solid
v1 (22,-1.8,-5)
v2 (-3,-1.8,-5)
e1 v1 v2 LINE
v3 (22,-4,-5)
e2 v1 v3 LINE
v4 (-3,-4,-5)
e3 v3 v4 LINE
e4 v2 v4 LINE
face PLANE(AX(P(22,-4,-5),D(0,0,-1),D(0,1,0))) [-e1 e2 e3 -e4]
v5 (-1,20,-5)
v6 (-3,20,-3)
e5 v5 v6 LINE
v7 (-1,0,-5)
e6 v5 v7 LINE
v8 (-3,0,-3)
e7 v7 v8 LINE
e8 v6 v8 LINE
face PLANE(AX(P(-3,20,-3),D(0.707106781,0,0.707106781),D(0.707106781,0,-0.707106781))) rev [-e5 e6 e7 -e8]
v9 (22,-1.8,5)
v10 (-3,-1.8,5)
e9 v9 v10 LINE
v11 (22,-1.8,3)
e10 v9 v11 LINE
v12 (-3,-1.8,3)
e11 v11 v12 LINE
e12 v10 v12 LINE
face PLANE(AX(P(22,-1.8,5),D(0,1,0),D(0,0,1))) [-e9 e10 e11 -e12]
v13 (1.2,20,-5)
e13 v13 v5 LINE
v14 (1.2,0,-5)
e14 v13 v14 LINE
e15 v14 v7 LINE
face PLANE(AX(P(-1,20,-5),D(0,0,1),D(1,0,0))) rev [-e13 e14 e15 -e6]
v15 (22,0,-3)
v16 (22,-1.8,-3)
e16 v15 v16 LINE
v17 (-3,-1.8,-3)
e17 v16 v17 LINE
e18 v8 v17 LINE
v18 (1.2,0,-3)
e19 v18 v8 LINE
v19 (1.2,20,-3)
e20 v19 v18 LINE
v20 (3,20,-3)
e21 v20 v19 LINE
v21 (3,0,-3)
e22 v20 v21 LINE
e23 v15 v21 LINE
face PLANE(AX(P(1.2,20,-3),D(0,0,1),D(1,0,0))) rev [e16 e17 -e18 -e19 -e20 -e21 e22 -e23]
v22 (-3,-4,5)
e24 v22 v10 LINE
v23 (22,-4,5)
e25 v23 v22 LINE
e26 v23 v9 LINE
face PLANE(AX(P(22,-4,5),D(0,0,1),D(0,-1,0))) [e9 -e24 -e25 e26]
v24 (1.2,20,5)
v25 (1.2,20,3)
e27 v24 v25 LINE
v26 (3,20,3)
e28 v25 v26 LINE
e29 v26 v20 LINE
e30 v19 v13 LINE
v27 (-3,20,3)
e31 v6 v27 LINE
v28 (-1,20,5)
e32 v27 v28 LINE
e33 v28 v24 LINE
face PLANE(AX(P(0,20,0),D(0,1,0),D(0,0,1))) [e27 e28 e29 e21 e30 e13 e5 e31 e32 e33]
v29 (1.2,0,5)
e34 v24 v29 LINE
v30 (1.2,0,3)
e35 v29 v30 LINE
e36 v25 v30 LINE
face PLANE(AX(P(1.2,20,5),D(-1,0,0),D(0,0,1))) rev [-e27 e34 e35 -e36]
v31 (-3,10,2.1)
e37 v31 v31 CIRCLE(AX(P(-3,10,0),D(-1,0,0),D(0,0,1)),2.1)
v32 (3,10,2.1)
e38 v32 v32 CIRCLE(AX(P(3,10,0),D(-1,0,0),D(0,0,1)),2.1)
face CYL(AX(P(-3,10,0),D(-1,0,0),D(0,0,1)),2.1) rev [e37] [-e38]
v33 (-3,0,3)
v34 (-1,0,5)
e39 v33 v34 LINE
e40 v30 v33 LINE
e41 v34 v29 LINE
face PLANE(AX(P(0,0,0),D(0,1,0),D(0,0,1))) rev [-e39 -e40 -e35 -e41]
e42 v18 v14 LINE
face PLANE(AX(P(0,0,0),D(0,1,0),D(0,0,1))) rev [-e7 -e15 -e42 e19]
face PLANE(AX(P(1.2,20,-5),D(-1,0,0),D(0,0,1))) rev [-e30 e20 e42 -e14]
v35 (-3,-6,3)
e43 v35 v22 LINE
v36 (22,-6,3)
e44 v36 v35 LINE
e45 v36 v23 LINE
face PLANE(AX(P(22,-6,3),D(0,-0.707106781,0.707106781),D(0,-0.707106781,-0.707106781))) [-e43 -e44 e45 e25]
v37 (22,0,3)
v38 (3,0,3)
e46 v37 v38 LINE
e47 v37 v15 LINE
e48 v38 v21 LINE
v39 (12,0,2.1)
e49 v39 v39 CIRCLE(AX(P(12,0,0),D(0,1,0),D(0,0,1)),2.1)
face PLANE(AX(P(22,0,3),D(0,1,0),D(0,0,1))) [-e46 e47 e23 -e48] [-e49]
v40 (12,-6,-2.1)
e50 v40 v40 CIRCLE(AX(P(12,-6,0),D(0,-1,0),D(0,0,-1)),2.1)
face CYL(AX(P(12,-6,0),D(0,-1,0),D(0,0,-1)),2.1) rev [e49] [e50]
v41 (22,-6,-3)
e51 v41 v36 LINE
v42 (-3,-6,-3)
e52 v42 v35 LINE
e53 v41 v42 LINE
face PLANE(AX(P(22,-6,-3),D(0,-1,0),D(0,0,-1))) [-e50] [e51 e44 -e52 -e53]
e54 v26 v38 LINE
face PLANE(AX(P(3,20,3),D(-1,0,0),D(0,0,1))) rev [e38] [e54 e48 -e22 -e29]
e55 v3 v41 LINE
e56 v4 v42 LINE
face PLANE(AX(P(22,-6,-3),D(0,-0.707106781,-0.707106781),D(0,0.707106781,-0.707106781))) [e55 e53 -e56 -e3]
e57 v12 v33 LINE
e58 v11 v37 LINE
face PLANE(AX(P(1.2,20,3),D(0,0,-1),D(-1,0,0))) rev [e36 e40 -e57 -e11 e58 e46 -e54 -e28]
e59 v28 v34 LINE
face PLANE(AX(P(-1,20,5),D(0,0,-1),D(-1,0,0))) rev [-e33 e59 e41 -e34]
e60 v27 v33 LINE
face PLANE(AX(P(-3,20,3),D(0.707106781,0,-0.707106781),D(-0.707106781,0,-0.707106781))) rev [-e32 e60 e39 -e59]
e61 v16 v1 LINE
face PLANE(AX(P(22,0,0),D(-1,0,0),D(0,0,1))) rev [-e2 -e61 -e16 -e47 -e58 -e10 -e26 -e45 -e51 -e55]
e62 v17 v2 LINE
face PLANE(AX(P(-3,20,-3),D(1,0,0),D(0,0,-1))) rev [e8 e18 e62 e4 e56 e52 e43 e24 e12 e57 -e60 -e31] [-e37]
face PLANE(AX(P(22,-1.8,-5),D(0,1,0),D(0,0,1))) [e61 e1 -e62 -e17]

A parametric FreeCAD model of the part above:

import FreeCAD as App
import Part
import Sketcher
Q = App.Units.Quantity

doc = App.newDocument("Part")
body = doc.addObject("PartDesign::Body", "Body")

# Sketch on XZ plane
sketch1 = body.newObject("Sketcher::SketchObject", "Sketch")
sketch1.AttachmentSupport = (doc.getObject("XZ_Plane"), [""])
sketch1.MapMode = "FlatFace"
sketch1.addGeometry([
    Part.LineSegment(App.Vector(-3, -3, 0), App.Vector(-3, 3, 0)),  # 0
    Part.LineSegment(App.Vector(-3, 3, 0), App.Vector(-1, 5, 0)),  # 1
    Part.LineSegment(App.Vector(-1, 5, 0), App.Vector(1.2, 5, 0)),  # 2
    Part.LineSegment(App.Vector(1.2, 5, 0), App.Vector(1.2, 3, 0)),  # 3
    Part.LineSegment(App.Vector(1.2, 3, 0), App.Vector(3, 3, 0)),  # 4
    Part.LineSegment(App.Vector(3, 3, 0), App.Vector(3, -3, 0)),  # 5
    Part.LineSegment(App.Vector(3, -3, 0), App.Vector(1.2, -3, 0)),  # 6
    Part.LineSegment(App.Vector(1.2, -3, 0), App.Vector(1.2, -5, 0)),  # 7
    Part.LineSegment(App.Vector(1.2, -5, 0), App.Vector(-1, -5, 0)),  # 8
    Part.LineSegment(App.Vector(-1, -5, 0), App.Vector(-3, -3, 0)),  # 9
], False)
sketch1.addConstraint([
    Sketcher.Constraint("Coincident", 0, 2, 1, 1),
    Sketcher.Constraint("Coincident", 1, 2, 2, 1),
    Sketcher.Constraint("Coincident", 2, 2, 3, 1),
    Sketcher.Constraint("Coincident", 3, 2, 4, 1),
    Sketcher.Constraint("Coincident", 4, 2, 5, 1),
    Sketcher.Constraint("Coincident", 5, 2, 6, 1),
    Sketcher.Constraint("Coincident", 6, 2, 7, 1),
    Sketcher.Constraint("Coincident", 7, 2, 8, 1),
    Sketcher.Constraint("Coincident", 8, 2, 9, 1),
    Sketcher.Constraint("Coincident", 9, 2, 0, 1),
    Sketcher.Constraint("Vertical", 0),
    Sketcher.Constraint("Horizontal", 2),
    Sketcher.Constraint("Vertical", 3),
    Sketcher.Constraint("Horizontal", 4),
    Sketcher.Constraint("Vertical", 5),
    Sketcher.Constraint("Horizontal", 6),
    Sketcher.Constraint("Vertical", 7),
    Sketcher.Constraint("Horizontal", 8),
    Sketcher.Constraint("Symmetric", 0, 2, 5, 2, -1, 1),
    Sketcher.Constraint("Symmetric", 3, 2, 6, 2, -1),
    Sketcher.Constraint("Symmetric", 1, 2, 8, 2, -1),
    Sketcher.Constraint("Perpendicular", 1, 9),
    Sketcher.Constraint("Horizontal", 6, 2, 9, 2),
    Sketcher.Constraint("DistanceY", 0, 1, 0, 2, Q("6 mm")),
    Sketcher.Constraint("DistanceY", 3, 2, 3, 1, Q("2 mm")),
    Sketcher.Constraint("DistanceX", 2, 1, 2, 2, Q("2.2 mm")),
    Sketcher.Constraint("DistanceX", 4, 1, 4, 2, Q("1.8 mm")),
])
pad1 = body.newObject("PartDesign::Pad", "Pad")
pad1.Profile = sketch1
pad1.Length = 20
pad1.Reversed = True

# Sketch on YZ plane
sketch2 = body.newObject("Sketcher::SketchObject", "Sketch001")
sketch2.AttachmentSupport = (doc.getObject("YZ_Plane"), [""])
sketch2.MapMode = "FlatFace"
sketch2.AttachmentOffset = App.Placement(App.Vector(0, 0, -3), App.Rotation())
sketch2.addGeometry([
    Part.LineSegment(App.Vector(-6, -3, 0), App.Vector(-6, 3, 0)),  # 0
    Part.LineSegment(App.Vector(-6, 3, 0), App.Vector(-4, 5, 0)),  # 1
    Part.LineSegment(App.Vector(-4, 5, 0), App.Vector(-1.8, 5, 0)),  # 2
    Part.LineSegment(App.Vector(-1.8, 5, 0), App.Vector(-1.8, 3, 0)),  # 3
    Part.LineSegment(App.Vector(-1.8, 3, 0), App.Vector(0, 3, 0)),  # 4
    Part.LineSegment(App.Vector(0, 3, 0), App.Vector(0, -3, 0)),  # 5
    Part.LineSegment(App.Vector(0, -3, 0), App.Vector(-1.8, -3, 0)),  # 6
    Part.LineSegment(App.Vector(-1.8, -3, 0), App.Vector(-1.8, -5, 0)),  # 7
    Part.LineSegment(App.Vector(-1.8, -5, 0), App.Vector(-4, -5, 0)),  # 8
    Part.LineSegment(App.Vector(-4, -5, 0), App.Vector(-6, -3, 0)),  # 9
], False)
sketch2.addConstraint([
    Sketcher.Constraint("Coincident", 0, 2, 1, 1),
    Sketcher.Constraint("Coincident", 1, 2, 2, 1),
    Sketcher.Constraint("Coincident", 2, 2, 3, 1),
    Sketcher.Constraint("Coincident", 3, 2, 4, 1),
    Sketcher.Constraint("Coincident", 4, 2, 5, 1),
    Sketcher.Constraint("Coincident", 5, 2, 6, 1),
    Sketcher.Constraint("Coincident", 6, 2, 7, 1),
    Sketcher.Constraint("Coincident", 7, 2, 8, 1),
    Sketcher.Constraint("Coincident", 8, 2, 9, 1),
    Sketcher.Constraint("Coincident", 9, 2, 0, 1),
    Sketcher.Constraint("Vertical", 0),
    Sketcher.Constraint("Horizontal", 2),
    Sketcher.Constraint("Vertical", 3),
    Sketcher.Constraint("Horizontal", 4),
    Sketcher.Constraint("Vertical", 5),
    Sketcher.Constraint("Horizontal", 6),
    Sketcher.Constraint("Vertical", 7),
    Sketcher.Constraint("Horizontal", 8),
    Sketcher.Constraint("Symmetric", 4, 2, 5, 2, -1, 1),
    Sketcher.Constraint("Symmetric", 2, 2, 7, 2, -1),
    Sketcher.Constraint("Perpendicular", 1, 9),
    Sketcher.Constraint("Horizontal", 0, 2, 3, 2),
    Sketcher.Constraint("Horizontal", 6, 2, 9, 2),
    Sketcher.Constraint("Vertical", 1, 2, 8, 2),
    Sketcher.Constraint("DistanceY", 0, 1, 0, 2, Q("6 mm")),
    Sketcher.Constraint("DistanceY", 3, 2, 3, 1, Q("2 mm")),
    Sketcher.Constraint("DistanceX", 2, 1, 2, 2, Q("2.2 mm")),
    Sketcher.Constraint("DistanceX", 4, 1, 4, 2, Q("1.8 mm")),
])
pad2 = body.newObject("PartDesign::Pad", "Pad001")
pad2.Profile = sketch2
pad2.Length = 25

# Sketch on YZ plane
sketch3 = body.newObject("Sketcher::SketchObject", "Sketch002")
sketch3.AttachmentSupport = (doc.getObject("YZ_Plane"), [""])
sketch3.MapMode = "FlatFace"
sketch3.AttachmentOffset = App.Placement(App.Vector(0, 0, -3), App.Rotation())
sketch3.addGeometry(Part.Circle(App.Vector(10, 0, 0), App.Vector(0, 0, 1), 2.1), False)
sketch3.addConstraint([
    Sketcher.Constraint("PointOnObject", 0, 3, -1),
    Sketcher.Constraint("Diameter", 0, Q("4.2 mm")),
    Sketcher.Constraint("DistanceX", -1, 1, 0, 3, Q("10 mm")),
])
doc.recompute()
hole = body.newObject("PartDesign::Hole", "Hole")
hole.Profile = sketch3
hole.ThreadType = "None"
hole.Diameter = 4.2
hole.DepthType = "ThroughAll"
hole.Reversed = True

# Sketch on XZ plane
sketch4 = body.newObject("Sketcher::SketchObject", "Sketch003")
sketch4.AttachmentSupport = (doc.getObject("XZ_Plane"), [""])
sketch4.MapMode = "FlatFace"
sketch4.AttachmentOffset = App.Placement(App.Vector(0, 0, 6), App.Rotation())
sketch4.addGeometry(Part.Circle(App.Vector(12, 0, 0), App.Vector(0, 0, 1), 2.1), False)
sketch4.addConstraint([
    Sketcher.Constraint("PointOnObject", 0, 3, -1),
    Sketcher.Constraint("Diameter", 0, Q("4.2 mm")),
    Sketcher.Constraint("DistanceX", -1, 1, 0, 3, Q("12 mm")),
])
doc.recompute()
hole2 = body.newObject("PartDesign::Hole", "Hole001")
hole2.Profile = sketch4
hole2.ThreadType = "None"
hole2.Diameter = 4.2
hole2.DepthType = "ThroughAll"

doc.recompute()
